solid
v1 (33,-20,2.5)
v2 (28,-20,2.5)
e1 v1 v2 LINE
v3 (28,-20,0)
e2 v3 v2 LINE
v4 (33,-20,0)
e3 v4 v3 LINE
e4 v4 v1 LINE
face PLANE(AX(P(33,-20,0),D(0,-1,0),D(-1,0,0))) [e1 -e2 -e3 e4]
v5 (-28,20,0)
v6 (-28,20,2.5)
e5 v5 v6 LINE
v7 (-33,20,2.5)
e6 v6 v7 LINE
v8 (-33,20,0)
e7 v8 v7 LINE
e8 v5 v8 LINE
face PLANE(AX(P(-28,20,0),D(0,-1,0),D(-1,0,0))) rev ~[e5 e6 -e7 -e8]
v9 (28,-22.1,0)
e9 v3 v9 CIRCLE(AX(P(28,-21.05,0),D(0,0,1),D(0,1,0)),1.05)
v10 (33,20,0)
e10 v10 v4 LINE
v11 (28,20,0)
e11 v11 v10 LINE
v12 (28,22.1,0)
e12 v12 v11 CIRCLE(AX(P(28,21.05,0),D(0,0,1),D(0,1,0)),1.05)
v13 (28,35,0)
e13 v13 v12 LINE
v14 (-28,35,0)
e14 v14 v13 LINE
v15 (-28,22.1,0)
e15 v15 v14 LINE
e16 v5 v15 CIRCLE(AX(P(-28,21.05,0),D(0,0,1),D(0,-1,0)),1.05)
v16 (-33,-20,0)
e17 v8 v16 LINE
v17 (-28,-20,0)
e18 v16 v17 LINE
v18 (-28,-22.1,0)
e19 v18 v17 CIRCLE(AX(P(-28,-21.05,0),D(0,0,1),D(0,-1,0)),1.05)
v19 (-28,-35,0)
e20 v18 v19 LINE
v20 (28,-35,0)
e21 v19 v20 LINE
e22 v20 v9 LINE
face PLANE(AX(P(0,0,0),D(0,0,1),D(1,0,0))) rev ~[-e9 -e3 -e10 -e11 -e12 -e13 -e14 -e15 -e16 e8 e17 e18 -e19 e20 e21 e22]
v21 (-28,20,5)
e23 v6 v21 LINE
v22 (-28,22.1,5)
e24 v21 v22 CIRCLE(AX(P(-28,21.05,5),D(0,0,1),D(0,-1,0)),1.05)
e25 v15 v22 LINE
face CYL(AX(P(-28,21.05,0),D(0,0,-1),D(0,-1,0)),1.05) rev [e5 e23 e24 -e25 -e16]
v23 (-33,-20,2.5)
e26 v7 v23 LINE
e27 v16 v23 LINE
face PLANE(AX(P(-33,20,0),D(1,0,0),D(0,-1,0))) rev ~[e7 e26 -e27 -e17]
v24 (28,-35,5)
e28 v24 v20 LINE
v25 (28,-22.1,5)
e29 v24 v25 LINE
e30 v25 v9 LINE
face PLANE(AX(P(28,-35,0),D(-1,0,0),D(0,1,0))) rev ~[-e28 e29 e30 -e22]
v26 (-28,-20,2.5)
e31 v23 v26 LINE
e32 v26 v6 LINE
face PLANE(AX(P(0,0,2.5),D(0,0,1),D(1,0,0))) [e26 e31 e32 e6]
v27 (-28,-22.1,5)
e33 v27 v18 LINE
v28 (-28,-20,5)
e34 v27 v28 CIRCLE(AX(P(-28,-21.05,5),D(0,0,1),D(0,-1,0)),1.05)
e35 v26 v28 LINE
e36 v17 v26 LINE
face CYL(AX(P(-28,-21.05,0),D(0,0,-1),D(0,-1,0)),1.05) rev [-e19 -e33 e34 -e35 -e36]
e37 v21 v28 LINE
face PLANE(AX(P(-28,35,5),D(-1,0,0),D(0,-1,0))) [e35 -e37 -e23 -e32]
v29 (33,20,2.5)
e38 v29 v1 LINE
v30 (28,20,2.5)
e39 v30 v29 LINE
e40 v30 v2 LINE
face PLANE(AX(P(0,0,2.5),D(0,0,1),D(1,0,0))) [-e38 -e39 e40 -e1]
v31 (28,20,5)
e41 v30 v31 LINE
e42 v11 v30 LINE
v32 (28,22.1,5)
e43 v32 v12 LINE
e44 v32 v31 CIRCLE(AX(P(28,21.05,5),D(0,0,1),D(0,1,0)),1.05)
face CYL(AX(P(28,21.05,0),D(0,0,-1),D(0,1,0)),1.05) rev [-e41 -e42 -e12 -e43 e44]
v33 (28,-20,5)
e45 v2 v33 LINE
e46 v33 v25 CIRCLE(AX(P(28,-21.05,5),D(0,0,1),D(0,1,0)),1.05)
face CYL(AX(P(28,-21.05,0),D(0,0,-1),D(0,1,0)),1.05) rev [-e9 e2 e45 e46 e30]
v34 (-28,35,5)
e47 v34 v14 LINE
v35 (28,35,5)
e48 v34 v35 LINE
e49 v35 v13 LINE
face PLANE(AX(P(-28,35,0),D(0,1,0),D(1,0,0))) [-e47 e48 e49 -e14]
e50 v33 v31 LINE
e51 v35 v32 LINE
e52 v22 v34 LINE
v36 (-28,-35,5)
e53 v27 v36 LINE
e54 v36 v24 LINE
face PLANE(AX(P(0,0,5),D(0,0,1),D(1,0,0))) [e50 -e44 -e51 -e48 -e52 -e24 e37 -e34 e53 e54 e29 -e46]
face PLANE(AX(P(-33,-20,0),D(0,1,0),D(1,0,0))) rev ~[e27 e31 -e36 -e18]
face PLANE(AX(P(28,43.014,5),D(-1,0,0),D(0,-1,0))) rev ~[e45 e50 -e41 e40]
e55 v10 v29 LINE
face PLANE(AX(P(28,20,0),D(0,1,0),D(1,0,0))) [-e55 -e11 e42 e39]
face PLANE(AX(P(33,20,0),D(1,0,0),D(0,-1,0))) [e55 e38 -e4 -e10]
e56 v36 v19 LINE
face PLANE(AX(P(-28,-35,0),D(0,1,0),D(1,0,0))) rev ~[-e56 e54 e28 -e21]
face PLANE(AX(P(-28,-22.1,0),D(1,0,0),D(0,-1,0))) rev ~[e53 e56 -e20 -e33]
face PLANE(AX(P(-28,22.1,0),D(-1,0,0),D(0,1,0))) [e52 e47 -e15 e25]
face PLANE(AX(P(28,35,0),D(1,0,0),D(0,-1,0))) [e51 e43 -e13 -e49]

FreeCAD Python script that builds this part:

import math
import FreeCAD as App
import Part
import Sketcher

V = App.Vector


def add_polygon(sketch, points):
    """Adds a closed chain of lines whose ends are joined by coincident constraints."""
    first, n = sketch.GeometryCount, len(points)
    for a, b in zip(points, points[1:] + points[:1]):
        sketch.addGeometry(Part.LineSegment(App.Vector(*a, 0), App.Vector(*b, 0)), False)
    for i in range(n):
        sketch.addConstraint(Sketcher.Constraint("Coincident", first + i, 2, first + (i + 1) % n, 1))

doc = App.newDocument("Part")
body = doc.addObject("PartDesign::Body", "Body")

# Sketch on XY plane
sketch1 = doc.addObject("Sketcher::SketchObject", "Sketch")
body.addObject(sketch1)
sketch1.AttachmentSupport = (doc.XY_Plane, [""])
sketch1.MapMode = "FlatFace"
sketch1.addGeometry(Part.LineSegment(V(-28, 35, 0), V(-28, 22.1, 0)), False)
sketch1.addGeometry(Part.ArcOfCircle(Part.Circle(V(-28, 21.05, 0), V(0, 0, 1), 1.05), math.radians(-90), math.radians(90)), False)
sketch1.addGeometry(Part.LineSegment(V(-28, 20, 0), V(-33, 20, 0)), False)
sketch1.addGeometry(Part.LineSegment(V(-33, 20, 0), V(-33, -20, 0)), False)
sketch1.addGeometry(Part.LineSegment(V(-33, -20, 0), V(-28, -20, 0)), False)
sketch1.addGeometry(Part.ArcOfCircle(Part.Circle(V(-28, -21.05, 0), V(0, 0, 1), 1.05), math.radians(-90), math.radians(90)), False)
sketch1.addGeometry(Part.LineSegment(V(-28, -22.1, 0), V(-28, -35, 0)), False)
sketch1.addGeometry(Part.LineSegment(V(-28, -35, 0), V(28, -35, 0)), False)
sketch1.addGeometry(Part.LineSegment(V(28, -35, 0), V(28, -22.1, 0)), False)
sketch1.addGeometry(Part.ArcOfCircle(Part.Circle(V(28, -21.05, 0), V(0, 0, 1), 1.05), math.radians(90), math.radians(270)), False)
sketch1.addGeometry(Part.LineSegment(V(28, -20, 0), V(33, -20, 0)), False)
sketch1.addGeometry(Part.LineSegment(V(33, -20, 0), V(33, 20, 0)), False)
sketch1.addGeometry(Part.LineSegment(V(33, 20, 0), V(28, 20, 0)), False)
sketch1.addGeometry(Part.ArcOfCircle(Part.Circle(V(28, 21.05, 0), V(0, 0, 1), 1.05), math.radians(90), math.radians(270)), False)
sketch1.addGeometry(Part.LineSegment(V(28, 22.1, 0), V(28, 35, 0)), False)
sketch1.addGeometry(Part.LineSegment(V(28, 35, 0), V(-28, 35, 0)), False)
sketch1.addConstraint(Sketcher.Constraint("Coincident", 0, 2, 1, 2))
sketch1.addConstraint(Sketcher.Constraint("Tangent", 1, 1, 2, 1))
sketch1.addConstraint(Sketcher.Constraint("Coincident", 2, 2, 3, 1))
sketch1.addConstraint(Sketcher.Constraint("Coincident", 3, 2, 4, 1))
sketch1.addConstraint(Sketcher.Constraint("Tangent", 4, 2, 5, 2))
sketch1.addConstraint(Sketcher.Constraint("Coincident", 5, 1, 6, 1))
sketch1.addConstraint(Sketcher.Constraint("Coincident", 6, 2, 7, 1))
sketch1.addConstraint(Sketcher.Constraint("Coincident", 7, 2, 8, 1))
sketch1.addConstraint(Sketcher.Constraint("Coincident", 8, 2, 9, 2))
sketch1.addConstraint(Sketcher.Constraint("Tangent", 9, 1, 10, 1))
sketch1.addConstraint(Sketcher.Constraint("Coincident", 10, 2, 11, 1))
sketch1.addConstraint(Sketcher.Constraint("Coincident", 11, 2, 12, 1))
sketch1.addConstraint(Sketcher.Constraint("Tangent", 12, 2, 13, 2))
sketch1.addConstraint(Sketcher.Constraint("Coincident", 13, 1, 14, 1))
sketch1.addConstraint(Sketcher.Constraint("Coincident", 14, 2, 15, 1))
sketch1.addConstraint(Sketcher.Constraint("Coincident", 15, 2, 0, 1))
sketch1.addConstraint(Sketcher.Constraint("Vertical", 0))
sketch1.addConstraint(Sketcher.Constraint("Horizontal", 2))
sketch1.addConstraint(Sketcher.Constraint("Vertical", 3))
sketch1.addConstraint(Sketcher.Constraint("Horizontal", 4))
sketch1.addConstraint(Sketcher.Constraint("Vertical", 6))
sketch1.addConstraint(Sketcher.Constraint("Horizontal", 7))
sketch1.addConstraint(Sketcher.Constraint("Vertical", 8))
sketch1.addConstraint(Sketcher.Constraint("Horizontal", 10))
sketch1.addConstraint(Sketcher.Constraint("Vertical", 11))
sketch1.addConstraint(Sketcher.Constraint("Horizontal", 12))
sketch1.addConstraint(Sketcher.Constraint("Vertical", 14))
sketch1.addConstraint(Sketcher.Constraint("Horizontal", 15))
sketch1.addConstraint(Sketcher.Constraint("Equal", 1, 5))
sketch1.addConstraint(Sketcher.Constraint("Equal", 5, 9))
sketch1.addConstraint(Sketcher.Constraint("Equal", 9, 13))
sketch1.addConstraint(Sketcher.Constraint("Symmetric", 1, 3, 9, 3, -1, 1))
sketch1.addConstraint(Sketcher.Constraint("Symmetric", 5, 3, 13, 3, -1, 1))
sketch1.addConstraint(Sketcher.Constraint("Symmetric", 6, 2, 14, 2, -1, 1))
sketch1.addConstraint(Sketcher.Constraint("Symmetric", 5, 3, 9, 3, -2))
sketch1.addConstraint(Sketcher.Constraint("Vertical", 5, 3, 0, 2))
sketch1.addConstraint(Sketcher.Constraint("Vertical", 4, 2, 5, 1))
sketch1.addConstraint(Sketcher.Constraint("Vertical", 13, 3, 7, 2))
sketch1.addConstraint(Sketcher.Constraint("Equal", 4, 10))
sketch1.addConstraint(Sketcher.Constraint("DistanceX", 2, 2, 2, 1, 5.0))
sketch1.addConstraint(Sketcher.Constraint("DistanceX", 7, 1, 7, 2, 56.0))
sketch1.addConstraint(Sketcher.Constraint("Radius", 1, 1.05))
sketch1.addConstraint(Sketcher.Constraint("DistanceY", 6, 2, 4, 2, 15.0))
sketch1.addConstraint(Sketcher.Constraint("DistanceY", 3, 2, 3, 1, 40.0))
pad1 = doc.addObject("PartDesign::Pad", "Pad")
body.addObject(pad1)
pad1.Profile = sketch1
pad1.Length = 5

# Sketch on XY plane
sketch2 = doc.addObject("Sketcher::SketchObject", "Sketch001")
body.addObject(sketch2)
sketch2.AttachmentSupport = (doc.XY_Plane, [""])
sketch2.MapMode = "FlatFace"
sketch2.AttachmentOffset = App.Placement(V(0, 0, 5), App.Rotation())
add_polygon(sketch2, [(28, 43.014), (28, -43.014), (67.7785, -43.014), (67.7785, 43.014)])  # lines 0-3
add_polygon(sketch2, [(-28, -43.014), (-28, 43.014), (-67.7785, 43.014), (-67.7785, -43.014)])  # lines 4-7
sketch2.addConstraint(Sketcher.Constraint("Vertical", 0))
sketch2.addConstraint(Sketcher.Constraint("Horizontal", 1))
sketch2.addConstraint(Sketcher.Constraint("Vertical", 2))
sketch2.addConstraint(Sketcher.Constraint("Horizontal", 3))
sketch2.addConstraint(Sketcher.Constraint("Vertical", 4))
sketch2.addConstraint(Sketcher.Constraint("Horizontal", 5))
sketch2.addConstraint(Sketcher.Constraint("Vertical", 6))
sketch2.addConstraint(Sketcher.Constraint("Horizontal", 7))
sketch2.addConstraint(Sketcher.Constraint("Symmetric", 0, 2, 4, 2, -1, 1))
sketch2.addConstraint(Sketcher.Constraint("Symmetric", 2, 2, 6, 2, -1, 1))
sketch2.addConstraint(Sketcher.Constraint("Horizontal", 3, 2, 4, 2))
sketch2.addConstraint(Sketcher.Constraint("DistanceX", -1, 1, 0, 2, 28.0))
sketch2.addConstraint(Sketcher.Constraint("DistanceY", 0, 2, 0, 1, 86.028))
sketch2.addConstraint(Sketcher.Constraint("DistanceX", 1, 1, 1, 2, 39.7785))
pocket1 = doc.addObject("PartDesign::Pocket", "Pocket")
body.addObject(pocket1)
pocket1.Profile = sketch2
pocket1.Length = 2.5

doc.recompute()
